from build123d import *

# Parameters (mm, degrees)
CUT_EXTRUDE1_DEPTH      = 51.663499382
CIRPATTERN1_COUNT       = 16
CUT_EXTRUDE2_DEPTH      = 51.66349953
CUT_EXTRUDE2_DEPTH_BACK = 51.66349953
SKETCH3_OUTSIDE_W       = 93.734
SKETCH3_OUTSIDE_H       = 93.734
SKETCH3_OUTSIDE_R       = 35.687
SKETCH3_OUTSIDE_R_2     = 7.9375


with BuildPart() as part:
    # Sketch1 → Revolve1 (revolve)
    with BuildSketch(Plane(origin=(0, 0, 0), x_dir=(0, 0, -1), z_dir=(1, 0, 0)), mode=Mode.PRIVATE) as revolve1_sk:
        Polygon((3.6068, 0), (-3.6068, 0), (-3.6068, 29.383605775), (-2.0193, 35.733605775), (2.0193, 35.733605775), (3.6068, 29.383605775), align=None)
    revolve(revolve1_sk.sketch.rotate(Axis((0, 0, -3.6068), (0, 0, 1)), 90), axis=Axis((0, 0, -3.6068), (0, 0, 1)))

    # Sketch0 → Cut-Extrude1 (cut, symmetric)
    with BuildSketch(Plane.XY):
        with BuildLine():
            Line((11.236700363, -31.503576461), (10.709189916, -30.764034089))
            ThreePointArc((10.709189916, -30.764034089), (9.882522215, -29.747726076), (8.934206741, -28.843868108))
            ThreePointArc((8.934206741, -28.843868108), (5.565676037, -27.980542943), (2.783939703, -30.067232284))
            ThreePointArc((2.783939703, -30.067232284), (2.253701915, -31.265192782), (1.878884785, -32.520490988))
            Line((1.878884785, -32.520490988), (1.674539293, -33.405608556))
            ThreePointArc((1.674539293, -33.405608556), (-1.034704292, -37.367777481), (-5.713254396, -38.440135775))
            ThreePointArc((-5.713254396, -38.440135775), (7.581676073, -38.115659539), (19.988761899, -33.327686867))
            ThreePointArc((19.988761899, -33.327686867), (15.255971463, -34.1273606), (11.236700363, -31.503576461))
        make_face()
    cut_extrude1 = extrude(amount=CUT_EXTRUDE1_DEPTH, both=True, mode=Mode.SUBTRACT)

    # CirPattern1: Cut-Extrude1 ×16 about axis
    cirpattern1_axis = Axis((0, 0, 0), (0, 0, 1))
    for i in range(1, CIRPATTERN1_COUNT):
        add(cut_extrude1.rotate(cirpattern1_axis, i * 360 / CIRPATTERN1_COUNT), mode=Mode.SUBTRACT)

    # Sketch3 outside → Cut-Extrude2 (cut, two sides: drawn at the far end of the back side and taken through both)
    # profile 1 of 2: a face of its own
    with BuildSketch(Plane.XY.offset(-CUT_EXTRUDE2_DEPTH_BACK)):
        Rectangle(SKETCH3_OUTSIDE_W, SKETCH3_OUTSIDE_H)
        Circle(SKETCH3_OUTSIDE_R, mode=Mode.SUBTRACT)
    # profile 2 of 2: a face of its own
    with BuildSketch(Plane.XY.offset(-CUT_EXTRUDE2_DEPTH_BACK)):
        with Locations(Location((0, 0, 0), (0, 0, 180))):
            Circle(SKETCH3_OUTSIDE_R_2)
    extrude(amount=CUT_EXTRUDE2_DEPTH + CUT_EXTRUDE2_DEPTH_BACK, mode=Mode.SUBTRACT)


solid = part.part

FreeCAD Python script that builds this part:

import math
import FreeCAD as App
import Part
import Sketcher

V = App.Vector
Q = App.Units.Quantity

doc = App.newDocument("Part")
body = doc.addObject("PartDesign::Body", "Body")

sketch1 = body.newObject("Sketcher::SketchObject", "Sketch")
sketch1.AttachmentSupport = (doc.getObject("YZ_Plane"), [""])
sketch1.MapMode = "FlatFace"
sketch1.addGeometry([
    Part.LineSegment(V(0, 3.6, 0), V(0, -3.6, 0)),
    Part.LineSegment(V(0, -3.6, 0), V(29.4, -3.6, 0)),
    Part.LineSegment(V(29.4, -3.6, 0), V(35.7, -2, 0)),
    Part.LineSegment(V(35.7, -2, 0), V(35.7, 2, 0)),
    Part.LineSegment(V(35.7, 2, 0), V(29.4, 3.6, 0)),
    Part.LineSegment(V(29.4, 3.6, 0), V(0, 3.6, 0)),
], False)
sketch1.addConstraint([
    Sketcher.Constraint("Coincident", 0, 2, 1, 1),
    Sketcher.Constraint("Coincident", 1, 2, 2, 1),
    Sketcher.Constraint("Coincident", 2, 2, 3, 1),
    Sketcher.Constraint("Coincident", 3, 2, 4, 1),
    Sketcher.Constraint("Coincident", 4, 2, 5, 1),
    Sketcher.Constraint("Coincident", 5, 2, 0, 1),
    Sketcher.Constraint("Vertical", 0),
    Sketcher.Constraint("Horizontal", 1),
    Sketcher.Constraint("Vertical", 3),
    Sketcher.Constraint("Horizontal", 5),
    Sketcher.Constraint("Symmetric", 0, 2, 5, 2, -1, 1),
    Sketcher.Constraint("Vertical", 1, 2, 4, 2),
    Sketcher.Constraint("Equal", 2, 4),
    Sketcher.Constraint("DistanceY", 0, 2, 0, 1, Q("0.284 in")),
    Sketcher.Constraint("DistanceY", 3, 1, 3, 2, Q("0.159 in")),
    Sketcher.Constraint("DistanceX", 1, 2, 2, 2, Q("0.25 in")),
    Sketcher.Constraint("DistanceX", 1, 1, 1, 2, 29.383606),
])
revolution = body.newObject("PartDesign::Revolution", "Revolution")
revolution.Profile = sketch1
revolution.ReferenceAxis = (sketch1, ["V_Axis"])
revolution.Angle = 360

sketch2 = body.newObject("Sketcher::SketchObject", "Sketch001")
sketch2.AttachmentSupport = (doc.getObject("XY_Plane"), [""])
sketch2.MapMode = "FlatFace"
sketch2.addGeometry([
    Part.LineSegment(V(11.2, -31.5, 0), V(10.7, -30.8, 0)),
    Part.ArcOfCircle(Part.Circle(V(2.3, -36.8, 0), V(0, 0, 1), 10.4), math.radians(35.5), math.radians(50)),
    Part.ArcOfCircle(Part.Circle(V(6.3, -31.9, 0), V(0, 0, 1), 4), math.radians(50), math.radians(152)),
    Part.ArcOfCircle(Part.Circle(V(12, -34.9, 0), V(0, 0, 1), 10.4), math.radians(152.5), math.radians(167)),
    Part.LineSegment(V(1.9, -32.5, 0), V(1.7, -33.4, 0)),
    Part.ArcOfCircle(Part.Circle(V(-4.7, -31.9, 0), V(0, 0, 1), 6.6), math.radians(-98), math.radians(-13)),
    Part.ArcOfCircle(Part.Circle(V(0, 0, 0), V(0, 0, 1), 38.9), math.radians(-98), math.radians(-59)),
    Part.ArcOfCircle(Part.Circle(V(16.6, -27.7, 0), V(0, 0, 1), 6.6), math.radians(-144), math.radians(-59)),
], False)
sketch2.addConstraint([
    Sketcher.Constraint("Tangent", 0, 2, 1, 1),
    Sketcher.Constraint("Tangent", 1, 2, 2, 1),
    Sketcher.Constraint("Tangent", 2, 2, 3, 1),
    Sketcher.Constraint("Tangent", 3, 2, 4, 1),
    Sketcher.Constraint("Tangent", 4, 2, 5, 2),
    Sketcher.Constraint("Tangent", 5, 1, 6, 1),
    Sketcher.Constraint("Tangent", 6, 2, 7, 2),
    Sketcher.Constraint("Tangent", 7, 1, 0, 1),
    Sketcher.Constraint("Coincident", 6, 3, -1, 1),
    Sketcher.Constraint("Equal", 1, 3),
    Sketcher.Constraint("Equal", 5, 7),
    Sketcher.Constraint("Horizontal", 2, 3, 5, 3),
    Sketcher.Constraint("Equal", 0, 4),
    Sketcher.Constraint("Angle", 4, Q("-103 deg")),
    Sketcher.Constraint("Angle", 0, Q("125.5 deg")),
    Sketcher.Constraint("DistanceX", -1, 1, 2, 3, Q("0.25 in")),
    Sketcher.Constraint("Radius", 3, 10.360152),
    Sketcher.Constraint("Radius", 6, 38.862389),
    Sketcher.Constraint("DistanceX", 5, 3, -1, 1, Q("0.1868 in")),
    Sketcher.Constraint("Radius", 2, 4.020312),
    Sketcher.Constraint("Radius", 5, 6.588112),
])
pocket1 = body.newObject("PartDesign::Pocket", "Pocket")
pocket1.Profile = sketch2
pocket1.Length = 103.326999
pocket1.Midplane = True
doc.recompute()

polarpattern = body.newObject("PartDesign::PolarPattern", "PolarPattern")
polarpattern.Originals = [pocket1]
polarpattern.Axis = (doc.getObject("Z_Axis"), [""])
polarpattern.Angle = 360
polarpattern.Occurrences = 16
body.Tip = polarpattern

sketch3 = body.newObject("Sketcher::SketchObject", "Sketch002")
sketch3.AttachmentSupport = (doc.getObject("XY_Plane"), [""])
sketch3.MapMode = "FlatFace"
sketch3.addGeometry([
    Part.LineSegment(V(-47, 47, 0), V(-47, -47, 0)),
    Part.LineSegment(V(-47, -47, 0), V(47, -47, 0)),
    Part.LineSegment(V(47, -47, 0), V(47, 47, 0)),
    Part.LineSegment(V(47, 47, 0), V(-47, 47, 0)),
    Part.Circle(V(0, 0, 0), V(0, 0, 1), 36),
    Part.Circle(V(0, 0, 0), V(0, 0, 1), 8),
], False)
sketch3.addConstraint([
    Sketcher.Constraint("Coincident", 0, 2, 1, 1),
    Sketcher.Constraint("Coincident", 1, 2, 2, 1),
    Sketcher.Constraint("Coincident", 2, 2, 3, 1),
    Sketcher.Constraint("Coincident", 3, 2, 0, 1),
    Sketcher.Constraint("Vertical", 0),
    Sketcher.Constraint("Horizontal", 1),
    Sketcher.Constraint("Vertical", 2),
    Sketcher.Constraint("Horizontal", 3),
    Sketcher.Constraint("Coincident", 4, 3, -1, 1),
    Sketcher.Constraint("Coincident", 5, 3, -1, 1),
    Sketcher.Constraint("Symmetric", 0, 2, 2, 2, -1, 1),
    Sketcher.Constraint("Equal", 3, 0),
    Sketcher.Constraint("Diameter", 4, Q("2.81 in")),
    Sketcher.Constraint("Diameter", 5, Q("0.625 in")),
    Sketcher.Constraint("DistanceX", 1, 1, 1, 2, 93.734),
])
pocket2 = body.newObject("PartDesign::Pocket", "Pocket001")
pocket2.Profile = sketch3
pocket2.Type = "ThroughAll"
pocket2.Midplane = True

doc.recompute()
